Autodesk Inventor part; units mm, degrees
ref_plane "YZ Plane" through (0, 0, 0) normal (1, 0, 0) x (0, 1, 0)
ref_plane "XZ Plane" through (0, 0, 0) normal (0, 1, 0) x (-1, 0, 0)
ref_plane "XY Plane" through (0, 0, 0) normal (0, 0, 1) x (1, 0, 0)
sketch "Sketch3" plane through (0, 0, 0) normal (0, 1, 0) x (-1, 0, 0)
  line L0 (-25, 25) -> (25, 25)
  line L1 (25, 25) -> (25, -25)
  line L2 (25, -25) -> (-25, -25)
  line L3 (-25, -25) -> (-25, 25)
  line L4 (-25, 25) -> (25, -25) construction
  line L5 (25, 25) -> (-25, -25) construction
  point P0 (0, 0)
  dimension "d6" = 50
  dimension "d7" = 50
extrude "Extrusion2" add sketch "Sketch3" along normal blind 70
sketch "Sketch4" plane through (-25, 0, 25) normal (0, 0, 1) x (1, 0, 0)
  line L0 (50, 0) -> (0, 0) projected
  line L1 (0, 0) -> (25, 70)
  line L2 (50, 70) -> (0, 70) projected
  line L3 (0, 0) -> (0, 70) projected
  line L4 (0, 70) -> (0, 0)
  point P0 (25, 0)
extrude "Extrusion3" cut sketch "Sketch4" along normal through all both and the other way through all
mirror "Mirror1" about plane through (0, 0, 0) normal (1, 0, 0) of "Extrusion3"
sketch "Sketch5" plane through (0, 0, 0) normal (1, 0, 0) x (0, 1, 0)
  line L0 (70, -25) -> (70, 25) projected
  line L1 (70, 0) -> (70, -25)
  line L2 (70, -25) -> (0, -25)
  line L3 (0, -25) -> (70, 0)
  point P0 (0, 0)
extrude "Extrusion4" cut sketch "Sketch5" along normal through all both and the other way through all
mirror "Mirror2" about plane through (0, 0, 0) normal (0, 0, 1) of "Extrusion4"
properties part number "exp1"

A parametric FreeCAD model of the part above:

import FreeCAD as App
import Part
import Sketcher

V = App.Vector


def add_polygon(sketch, points):
    """Adds a closed chain of lines whose ends are joined by coincident constraints."""
    first, n = sketch.GeometryCount, len(points)
    for a, b in zip(points, points[1:] + points[:1]):
        sketch.addGeometry(Part.LineSegment(App.Vector(*a, 0), App.Vector(*b, 0)), False)
    for i in range(n):
        sketch.addConstraint(Sketcher.Constraint("Coincident", first + i, 2, first + (i + 1) % n, 1))

doc = App.newDocument("Part")
body = doc.addObject("PartDesign::Body", "Body")

# Sketch on XZ plane
sketch1 = body.newObject("Sketcher::SketchObject", "Sketch")
sketch1.AttachmentSupport = (doc.getObject("XZ_Plane"), [""])
sketch1.MapMode = "FlatFace"
add_polygon(sketch1, [(-25, 25), (25, 25), (25, -25), (-25, -25)])  # lines 0-3
sketch1.addConstraint(Sketcher.Constraint("Horizontal", 0))
sketch1.addConstraint(Sketcher.Constraint("Vertical", 1))
sketch1.addConstraint(Sketcher.Constraint("Horizontal", 2))
sketch1.addConstraint(Sketcher.Constraint("Vertical", 3))
sketch1.addConstraint(Sketcher.Constraint("Symmetric", 0, 2, 2, 2, -1, 1))
sketch1.addConstraint(Sketcher.Constraint("Equal", 2, 1))
sketch1.addConstraint(Sketcher.Constraint("DistanceX", 0, 1, 0, 2, 50.0))
pad1 = body.newObject("PartDesign::Pad", "Pad")
pad1.Profile = sketch1
pad1.Length = 70
pad1.Reversed = True

# Sketch on XY plane
sketch2 = body.newObject("Sketcher::SketchObject", "Sketch001")
sketch2.AttachmentSupport = (doc.getObject("XY_Plane"), [""])
sketch2.MapMode = "FlatFace"
sketch2.AttachmentOffset = App.Placement(V(0, 0, 25), App.Rotation())
add_polygon(sketch2, [(-25, 70), (-25, 0), (0, 70)])  # lines 0-2
sketch2.addConstraint(Sketcher.Constraint("Vertical", 0))
sketch2.addConstraint(Sketcher.Constraint("Horizontal", 2))
sketch2.addConstraint(Sketcher.Constraint("PointOnObject", 0, 2, -1))
sketch2.addConstraint(Sketcher.Constraint("PointOnObject", 1, 2, -2))
sketch2.addConstraint(Sketcher.Constraint("DistanceX", 2, 2, 2, 1, 25.0))
sketch2.addConstraint(Sketcher.Constraint("DistanceY", 0, 2, 0, 1, 70.0))
pocket1 = body.newObject("PartDesign::Pocket", "Pocket")
pocket1.Profile = sketch2
pocket1.Type = "ThroughAll"
pocket1.Midplane = True
doc.recompute()

mirrored = body.newObject("PartDesign::Mirrored", "Mirrored")
mirrored.Originals = [pocket1]
mirrored.MirrorPlane = (doc.getObject("YZ_Plane"), [""])
body.Tip = mirrored

# Sketch on YZ plane
sketch3 = body.newObject("Sketcher::SketchObject", "Sketch002")
sketch3.AttachmentSupport = (doc.getObject("YZ_Plane"), [""])
sketch3.MapMode = "FlatFace"
add_polygon(sketch3, [(0, -25), (70, -25), (70, 0)])  # lines 0-2
sketch3.addConstraint(Sketcher.Constraint("Horizontal", 0))
sketch3.addConstraint(Sketcher.Constraint("Vertical", 1))
sketch3.addConstraint(Sketcher.Constraint("PointOnObject", 1, 2, -1))
sketch3.addConstraint(Sketcher.Constraint("PointOnObject", 2, 2, -2))
sketch3.addConstraint(Sketcher.Constraint("DistanceX", 0, 1, 0, 2, 70.0))
sketch3.addConstraint(Sketcher.Constraint("DistanceY", 1, 1, 1, 2, 25.0))
pocket2 = body.newObject("PartDesign::Pocket", "Pocket001")
pocket2.Profile = sketch3
pocket2.Type = "ThroughAll"
pocket2.Midplane = True
doc.recompute()

mirrored2 = body.newObject("PartDesign::Mirrored", "Mirrored001")
mirrored2.Originals = [pocket2]
mirrored2.MirrorPlane = (doc.getObject("XY_Plane"), [""])
body.Tip = mirrored2

doc.recompute()
